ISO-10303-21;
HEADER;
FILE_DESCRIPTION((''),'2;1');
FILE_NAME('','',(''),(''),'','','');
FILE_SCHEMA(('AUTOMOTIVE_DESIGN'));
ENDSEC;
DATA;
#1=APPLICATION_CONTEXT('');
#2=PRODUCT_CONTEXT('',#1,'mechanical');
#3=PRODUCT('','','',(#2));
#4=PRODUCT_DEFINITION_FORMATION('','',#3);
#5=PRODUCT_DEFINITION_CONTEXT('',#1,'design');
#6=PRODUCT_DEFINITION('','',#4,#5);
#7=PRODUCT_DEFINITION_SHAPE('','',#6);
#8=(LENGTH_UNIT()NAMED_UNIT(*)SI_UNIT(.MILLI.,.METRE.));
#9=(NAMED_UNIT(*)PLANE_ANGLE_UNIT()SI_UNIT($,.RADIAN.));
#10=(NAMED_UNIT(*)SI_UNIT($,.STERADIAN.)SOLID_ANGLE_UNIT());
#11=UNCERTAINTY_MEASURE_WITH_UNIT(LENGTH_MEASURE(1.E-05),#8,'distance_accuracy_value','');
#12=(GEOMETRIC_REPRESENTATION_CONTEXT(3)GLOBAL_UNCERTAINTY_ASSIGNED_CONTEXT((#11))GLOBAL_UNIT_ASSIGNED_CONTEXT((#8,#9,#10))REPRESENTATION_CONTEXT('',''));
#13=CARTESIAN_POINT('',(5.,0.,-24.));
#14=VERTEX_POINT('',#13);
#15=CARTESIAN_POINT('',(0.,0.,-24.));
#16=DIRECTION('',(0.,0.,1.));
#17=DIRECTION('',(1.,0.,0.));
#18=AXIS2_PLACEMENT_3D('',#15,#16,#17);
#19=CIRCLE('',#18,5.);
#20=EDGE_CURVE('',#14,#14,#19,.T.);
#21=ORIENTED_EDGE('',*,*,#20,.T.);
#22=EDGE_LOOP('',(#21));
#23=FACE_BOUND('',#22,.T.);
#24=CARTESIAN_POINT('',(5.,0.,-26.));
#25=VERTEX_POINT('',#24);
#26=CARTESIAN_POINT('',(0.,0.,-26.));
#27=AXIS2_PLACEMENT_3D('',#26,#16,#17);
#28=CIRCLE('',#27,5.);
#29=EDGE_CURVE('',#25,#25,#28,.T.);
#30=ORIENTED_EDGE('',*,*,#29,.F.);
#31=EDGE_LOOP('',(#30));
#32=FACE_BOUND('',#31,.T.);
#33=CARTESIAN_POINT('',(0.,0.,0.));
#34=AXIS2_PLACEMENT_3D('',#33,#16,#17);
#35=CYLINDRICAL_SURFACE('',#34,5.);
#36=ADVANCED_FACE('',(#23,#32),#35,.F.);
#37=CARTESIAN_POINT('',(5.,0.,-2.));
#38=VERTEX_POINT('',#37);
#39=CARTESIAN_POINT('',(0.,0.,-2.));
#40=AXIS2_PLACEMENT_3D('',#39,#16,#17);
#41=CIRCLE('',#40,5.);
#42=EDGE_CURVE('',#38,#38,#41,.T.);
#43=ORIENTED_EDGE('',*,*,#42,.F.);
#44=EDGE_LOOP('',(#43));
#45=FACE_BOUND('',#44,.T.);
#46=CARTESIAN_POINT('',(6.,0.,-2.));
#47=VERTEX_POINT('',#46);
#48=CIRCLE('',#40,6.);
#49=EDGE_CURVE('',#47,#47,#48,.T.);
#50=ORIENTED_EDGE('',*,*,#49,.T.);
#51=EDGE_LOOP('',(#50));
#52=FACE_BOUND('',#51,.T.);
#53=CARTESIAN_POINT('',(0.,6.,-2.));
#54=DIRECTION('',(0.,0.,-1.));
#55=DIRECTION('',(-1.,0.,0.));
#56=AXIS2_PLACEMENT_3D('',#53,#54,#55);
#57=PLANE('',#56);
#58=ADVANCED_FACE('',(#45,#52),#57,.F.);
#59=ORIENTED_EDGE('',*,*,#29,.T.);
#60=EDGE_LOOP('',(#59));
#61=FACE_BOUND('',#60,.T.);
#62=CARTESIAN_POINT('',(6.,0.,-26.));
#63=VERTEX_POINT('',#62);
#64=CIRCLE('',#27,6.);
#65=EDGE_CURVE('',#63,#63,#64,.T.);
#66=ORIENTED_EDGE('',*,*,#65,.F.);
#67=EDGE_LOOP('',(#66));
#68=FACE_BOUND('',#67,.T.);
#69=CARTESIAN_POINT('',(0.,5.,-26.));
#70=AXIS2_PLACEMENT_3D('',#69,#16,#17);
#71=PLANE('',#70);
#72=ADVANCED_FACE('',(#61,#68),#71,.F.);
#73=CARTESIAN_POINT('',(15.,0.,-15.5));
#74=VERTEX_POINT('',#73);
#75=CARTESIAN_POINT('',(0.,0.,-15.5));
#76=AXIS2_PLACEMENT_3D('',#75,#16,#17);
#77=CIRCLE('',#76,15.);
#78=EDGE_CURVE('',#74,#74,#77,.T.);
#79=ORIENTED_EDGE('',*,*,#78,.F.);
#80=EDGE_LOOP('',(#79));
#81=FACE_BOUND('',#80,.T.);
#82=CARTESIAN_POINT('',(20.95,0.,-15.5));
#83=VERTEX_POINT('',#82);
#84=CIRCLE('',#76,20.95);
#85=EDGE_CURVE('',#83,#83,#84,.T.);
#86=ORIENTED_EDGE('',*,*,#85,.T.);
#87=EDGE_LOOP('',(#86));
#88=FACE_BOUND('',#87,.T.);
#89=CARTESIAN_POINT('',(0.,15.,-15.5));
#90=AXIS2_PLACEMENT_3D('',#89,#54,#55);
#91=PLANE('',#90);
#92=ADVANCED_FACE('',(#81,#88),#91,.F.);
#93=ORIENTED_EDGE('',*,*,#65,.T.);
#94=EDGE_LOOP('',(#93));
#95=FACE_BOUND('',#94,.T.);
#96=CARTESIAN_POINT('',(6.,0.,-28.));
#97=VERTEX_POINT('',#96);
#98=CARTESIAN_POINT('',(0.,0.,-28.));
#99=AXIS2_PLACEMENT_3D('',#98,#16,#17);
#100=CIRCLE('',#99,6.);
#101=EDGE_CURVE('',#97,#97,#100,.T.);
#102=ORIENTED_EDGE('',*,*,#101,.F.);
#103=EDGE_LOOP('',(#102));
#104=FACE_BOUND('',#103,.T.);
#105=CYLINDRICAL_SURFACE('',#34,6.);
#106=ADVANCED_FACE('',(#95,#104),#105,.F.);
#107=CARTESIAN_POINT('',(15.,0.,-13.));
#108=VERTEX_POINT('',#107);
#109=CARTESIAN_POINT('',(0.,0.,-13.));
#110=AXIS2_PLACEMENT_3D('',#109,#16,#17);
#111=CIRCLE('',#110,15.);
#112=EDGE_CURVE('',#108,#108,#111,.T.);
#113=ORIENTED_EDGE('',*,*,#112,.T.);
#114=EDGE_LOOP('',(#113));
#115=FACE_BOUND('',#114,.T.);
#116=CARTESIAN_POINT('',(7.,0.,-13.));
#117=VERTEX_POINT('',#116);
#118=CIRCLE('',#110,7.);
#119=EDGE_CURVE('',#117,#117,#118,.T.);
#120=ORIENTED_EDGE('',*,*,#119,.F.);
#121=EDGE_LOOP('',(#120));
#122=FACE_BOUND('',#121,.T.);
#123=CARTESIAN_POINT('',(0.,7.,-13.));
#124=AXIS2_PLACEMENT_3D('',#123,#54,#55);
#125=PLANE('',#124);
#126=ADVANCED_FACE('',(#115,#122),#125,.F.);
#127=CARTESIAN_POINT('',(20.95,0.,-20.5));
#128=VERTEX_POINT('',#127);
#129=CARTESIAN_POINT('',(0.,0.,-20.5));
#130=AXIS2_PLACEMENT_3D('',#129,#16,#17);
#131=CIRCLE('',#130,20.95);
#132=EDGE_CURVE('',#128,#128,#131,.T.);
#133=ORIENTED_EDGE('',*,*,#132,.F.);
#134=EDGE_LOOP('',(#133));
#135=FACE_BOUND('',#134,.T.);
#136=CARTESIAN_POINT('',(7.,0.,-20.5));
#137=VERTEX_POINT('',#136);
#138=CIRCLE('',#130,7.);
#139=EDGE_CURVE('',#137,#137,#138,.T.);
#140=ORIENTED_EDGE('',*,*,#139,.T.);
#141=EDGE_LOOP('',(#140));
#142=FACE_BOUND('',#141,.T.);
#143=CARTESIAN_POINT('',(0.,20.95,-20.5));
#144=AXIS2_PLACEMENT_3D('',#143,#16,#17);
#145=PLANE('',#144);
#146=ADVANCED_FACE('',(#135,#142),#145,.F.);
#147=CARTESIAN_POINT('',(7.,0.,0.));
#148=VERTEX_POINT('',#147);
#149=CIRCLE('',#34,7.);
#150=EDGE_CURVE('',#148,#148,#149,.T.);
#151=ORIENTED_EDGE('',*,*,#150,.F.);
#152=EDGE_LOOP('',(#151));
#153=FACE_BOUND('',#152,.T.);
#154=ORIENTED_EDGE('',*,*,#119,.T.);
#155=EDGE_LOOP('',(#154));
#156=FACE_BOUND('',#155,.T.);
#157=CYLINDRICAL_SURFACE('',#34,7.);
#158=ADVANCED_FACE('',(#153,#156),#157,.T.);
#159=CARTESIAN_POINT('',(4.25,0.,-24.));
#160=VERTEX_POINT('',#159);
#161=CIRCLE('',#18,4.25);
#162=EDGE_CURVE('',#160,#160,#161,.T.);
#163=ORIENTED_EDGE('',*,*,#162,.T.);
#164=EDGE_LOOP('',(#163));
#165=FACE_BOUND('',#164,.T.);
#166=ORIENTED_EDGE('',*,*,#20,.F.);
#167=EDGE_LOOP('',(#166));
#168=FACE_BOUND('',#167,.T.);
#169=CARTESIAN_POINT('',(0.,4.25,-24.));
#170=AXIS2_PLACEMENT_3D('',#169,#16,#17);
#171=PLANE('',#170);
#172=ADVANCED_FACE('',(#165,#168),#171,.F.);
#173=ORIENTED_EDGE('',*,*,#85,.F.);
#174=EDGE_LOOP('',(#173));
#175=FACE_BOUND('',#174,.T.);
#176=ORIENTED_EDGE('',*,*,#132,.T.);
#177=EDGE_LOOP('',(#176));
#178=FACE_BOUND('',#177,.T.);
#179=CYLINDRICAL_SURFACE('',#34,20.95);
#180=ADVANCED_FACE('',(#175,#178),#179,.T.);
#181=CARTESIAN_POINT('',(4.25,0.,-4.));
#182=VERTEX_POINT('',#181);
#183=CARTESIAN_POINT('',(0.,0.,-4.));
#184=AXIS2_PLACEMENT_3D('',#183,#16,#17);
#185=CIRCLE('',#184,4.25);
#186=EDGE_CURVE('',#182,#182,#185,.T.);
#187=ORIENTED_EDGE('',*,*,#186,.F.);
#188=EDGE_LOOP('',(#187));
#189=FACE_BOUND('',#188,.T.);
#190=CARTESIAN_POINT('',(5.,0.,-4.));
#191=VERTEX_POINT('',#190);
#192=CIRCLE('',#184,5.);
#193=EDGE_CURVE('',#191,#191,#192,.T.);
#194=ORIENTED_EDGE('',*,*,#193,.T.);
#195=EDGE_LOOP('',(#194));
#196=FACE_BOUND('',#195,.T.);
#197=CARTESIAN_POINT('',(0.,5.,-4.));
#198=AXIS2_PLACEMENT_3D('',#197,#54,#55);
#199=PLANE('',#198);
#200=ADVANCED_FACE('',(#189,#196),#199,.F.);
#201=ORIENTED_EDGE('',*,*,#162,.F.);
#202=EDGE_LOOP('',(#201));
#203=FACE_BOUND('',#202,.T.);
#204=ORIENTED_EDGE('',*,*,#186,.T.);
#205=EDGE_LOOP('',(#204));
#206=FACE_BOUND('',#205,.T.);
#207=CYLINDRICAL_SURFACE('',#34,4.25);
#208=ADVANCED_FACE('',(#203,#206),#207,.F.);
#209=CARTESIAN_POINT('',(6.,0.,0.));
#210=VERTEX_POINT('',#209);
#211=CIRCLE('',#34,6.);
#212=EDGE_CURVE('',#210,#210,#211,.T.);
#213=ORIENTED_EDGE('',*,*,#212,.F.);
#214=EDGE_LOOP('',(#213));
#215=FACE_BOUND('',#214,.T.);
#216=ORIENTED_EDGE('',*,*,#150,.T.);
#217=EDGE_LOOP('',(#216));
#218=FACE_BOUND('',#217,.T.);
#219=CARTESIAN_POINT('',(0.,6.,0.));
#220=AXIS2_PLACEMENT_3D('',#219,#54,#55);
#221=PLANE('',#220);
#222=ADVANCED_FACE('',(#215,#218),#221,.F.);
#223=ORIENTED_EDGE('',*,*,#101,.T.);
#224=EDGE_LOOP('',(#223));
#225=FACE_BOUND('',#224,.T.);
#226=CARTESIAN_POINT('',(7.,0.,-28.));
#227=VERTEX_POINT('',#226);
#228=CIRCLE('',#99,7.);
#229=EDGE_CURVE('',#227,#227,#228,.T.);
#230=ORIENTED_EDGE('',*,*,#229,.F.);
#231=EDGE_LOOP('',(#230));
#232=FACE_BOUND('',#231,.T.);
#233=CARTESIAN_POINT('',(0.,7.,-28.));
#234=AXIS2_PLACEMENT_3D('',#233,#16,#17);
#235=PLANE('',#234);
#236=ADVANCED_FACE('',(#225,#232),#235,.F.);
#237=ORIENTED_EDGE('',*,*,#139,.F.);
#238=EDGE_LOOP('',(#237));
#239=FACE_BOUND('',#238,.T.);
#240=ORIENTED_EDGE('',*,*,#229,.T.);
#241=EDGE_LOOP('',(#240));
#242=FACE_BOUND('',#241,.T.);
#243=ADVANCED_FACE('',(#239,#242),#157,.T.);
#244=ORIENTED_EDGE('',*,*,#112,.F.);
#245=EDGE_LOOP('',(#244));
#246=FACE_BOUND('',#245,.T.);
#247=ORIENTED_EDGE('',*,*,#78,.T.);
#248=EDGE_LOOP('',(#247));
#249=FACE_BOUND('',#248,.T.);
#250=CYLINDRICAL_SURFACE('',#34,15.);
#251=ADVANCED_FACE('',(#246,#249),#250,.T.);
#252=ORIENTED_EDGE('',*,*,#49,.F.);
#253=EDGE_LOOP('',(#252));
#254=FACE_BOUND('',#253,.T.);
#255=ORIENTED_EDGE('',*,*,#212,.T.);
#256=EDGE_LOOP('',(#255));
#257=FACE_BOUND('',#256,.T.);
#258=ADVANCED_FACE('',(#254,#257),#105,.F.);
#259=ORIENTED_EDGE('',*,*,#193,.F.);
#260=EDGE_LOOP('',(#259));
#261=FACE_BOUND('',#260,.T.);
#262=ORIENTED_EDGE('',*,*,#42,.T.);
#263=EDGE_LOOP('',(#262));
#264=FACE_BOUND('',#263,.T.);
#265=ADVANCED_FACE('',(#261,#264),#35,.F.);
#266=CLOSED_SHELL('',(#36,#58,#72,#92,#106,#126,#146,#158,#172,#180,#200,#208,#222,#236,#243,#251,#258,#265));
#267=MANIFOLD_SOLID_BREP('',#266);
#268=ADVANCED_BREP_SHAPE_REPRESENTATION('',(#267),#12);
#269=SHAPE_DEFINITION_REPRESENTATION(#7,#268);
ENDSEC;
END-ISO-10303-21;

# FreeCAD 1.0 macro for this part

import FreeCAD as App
import Part
import Sketcher
from FreeCAD import Vector
Q = App.Units.Quantity


def add_polygon(sketch, points):
    """Adds a closed chain of lines whose ends are joined by coincident constraints."""
    first, n = sketch.GeometryCount, len(points)
    for a, b in zip(points, points[1:] + points[:1]):
        sketch.addGeometry(Part.LineSegment(App.Vector(*a, 0), App.Vector(*b, 0)), False)
    for i in range(n):
        sketch.addConstraint(Sketcher.Constraint("Coincident", first + i, 2, first + (i + 1) % n, 1))

doc = App.newDocument("Part")
body = doc.addObject("PartDesign::Body", "Body")

# Sketch on YZ plane
sketch1 = body.newObject("Sketcher::SketchObject", "Sketch")
sketch1.AttachmentSupport = (doc.getObject("YZ_Plane"), [""])
sketch1.MapMode = "FlatFace"
add_polygon(sketch1, [(7, 0), (6, 0), (6, -2), (5, -2), (5, -4), (4.25, -4), (4.25, -24), (5, -24), (5, -26), (6, -26), (6, -28), (7, -28), (7, -20.5), (20.95, -20.5), (20.95, -15.5), (15, -15.5), (15, -13), (7, -13)])  # lines 0-17
sketch1.addConstraint(Sketcher.Constraint("Horizontal", 0))
sketch1.addConstraint(Sketcher.Constraint("Vertical", 1))
sketch1.addConstraint(Sketcher.Constraint("Horizontal", 2))
sketch1.addConstraint(Sketcher.Constraint("Vertical", 3))
sketch1.addConstraint(Sketcher.Constraint("Horizontal", 4))
sketch1.addConstraint(Sketcher.Constraint("Vertical", 5))
sketch1.addConstraint(Sketcher.Constraint("Horizontal", 6))
sketch1.addConstraint(Sketcher.Constraint("Vertical", 7))
sketch1.addConstraint(Sketcher.Constraint("Horizontal", 8))
sketch1.addConstraint(Sketcher.Constraint("Vertical", 9))
sketch1.addConstraint(Sketcher.Constraint("Horizontal", 10))
sketch1.addConstraint(Sketcher.Constraint("Vertical", 11))
sketch1.addConstraint(Sketcher.Constraint("Horizontal", 12))
sketch1.addConstraint(Sketcher.Constraint("Vertical", 13))
sketch1.addConstraint(Sketcher.Constraint("Horizontal", 14))
sketch1.addConstraint(Sketcher.Constraint("Vertical", 15))
sketch1.addConstraint(Sketcher.Constraint("Horizontal", 16))
sketch1.addConstraint(Sketcher.Constraint("Vertical", 17))
sketch1.addConstraint(Sketcher.Constraint("PointOnObject", 0, 2, -1))
sketch1.addConstraint(Sketcher.Constraint("Vertical", 3, 2, 6, 2))
sketch1.addConstraint(Sketcher.Constraint("Vertical", 1, 2, 8, 2))
sketch1.addConstraint(Sketcher.Constraint("Vertical", 11, 2, 16, 2))
sketch1.addConstraint(Sketcher.Constraint("Equal", 0, 2))
sketch1.addConstraint(Sketcher.Constraint("Equal", 1, 3))
sketch1.addConstraint(Sketcher.Constraint("Equal", 3, 7))
sketch1.addConstraint(Sketcher.Constraint("Equal", 7, 9))
sketch1.addConstraint(Sketcher.Constraint("DistanceX", 0, 2, 0, 1, Q("1 mm")))
sketch1.addConstraint(Sketcher.Constraint("DistanceX", 16, 2, 16, 1, Q("8 mm")))
sketch1.addConstraint(Sketcher.Constraint("DistanceY", 1, 2, 1, 1, Q("2 mm")))
sketch1.addConstraint(Sketcher.Constraint("DistanceY", 5, 2, 5, 1, Q("20 mm")))
sketch1.addConstraint(Sketcher.Constraint("DistanceY", 13, 1, 13, 2, Q("5 mm")))
sketch1.addConstraint(Sketcher.Constraint("DistanceY", 17, 1, 17, 2, Q("13 mm")))
sketch1.addConstraint(Sketcher.Constraint("DistanceY", 11, 1, 11, 2, Q("7.5 mm")))
sketch1.addConstraint(Sketcher.Constraint("DistanceX", -1, 1, 0, 2, Q("6 mm")))
sketch1.addConstraint(Sketcher.Constraint("DistanceX", 4, 2, 4, 1, Q("0.75 mm")))
sketch1.addConstraint(Sketcher.Constraint("DistanceX", 12, 1, 12, 2, Q("13.95 mm")))
revolution = body.newObject("PartDesign::Revolution", "Revolution")
revolution.Profile = sketch1
revolution.ReferenceAxis = (sketch1, ["V_Axis"])
revolution.Angle = 360

doc.recompute()
